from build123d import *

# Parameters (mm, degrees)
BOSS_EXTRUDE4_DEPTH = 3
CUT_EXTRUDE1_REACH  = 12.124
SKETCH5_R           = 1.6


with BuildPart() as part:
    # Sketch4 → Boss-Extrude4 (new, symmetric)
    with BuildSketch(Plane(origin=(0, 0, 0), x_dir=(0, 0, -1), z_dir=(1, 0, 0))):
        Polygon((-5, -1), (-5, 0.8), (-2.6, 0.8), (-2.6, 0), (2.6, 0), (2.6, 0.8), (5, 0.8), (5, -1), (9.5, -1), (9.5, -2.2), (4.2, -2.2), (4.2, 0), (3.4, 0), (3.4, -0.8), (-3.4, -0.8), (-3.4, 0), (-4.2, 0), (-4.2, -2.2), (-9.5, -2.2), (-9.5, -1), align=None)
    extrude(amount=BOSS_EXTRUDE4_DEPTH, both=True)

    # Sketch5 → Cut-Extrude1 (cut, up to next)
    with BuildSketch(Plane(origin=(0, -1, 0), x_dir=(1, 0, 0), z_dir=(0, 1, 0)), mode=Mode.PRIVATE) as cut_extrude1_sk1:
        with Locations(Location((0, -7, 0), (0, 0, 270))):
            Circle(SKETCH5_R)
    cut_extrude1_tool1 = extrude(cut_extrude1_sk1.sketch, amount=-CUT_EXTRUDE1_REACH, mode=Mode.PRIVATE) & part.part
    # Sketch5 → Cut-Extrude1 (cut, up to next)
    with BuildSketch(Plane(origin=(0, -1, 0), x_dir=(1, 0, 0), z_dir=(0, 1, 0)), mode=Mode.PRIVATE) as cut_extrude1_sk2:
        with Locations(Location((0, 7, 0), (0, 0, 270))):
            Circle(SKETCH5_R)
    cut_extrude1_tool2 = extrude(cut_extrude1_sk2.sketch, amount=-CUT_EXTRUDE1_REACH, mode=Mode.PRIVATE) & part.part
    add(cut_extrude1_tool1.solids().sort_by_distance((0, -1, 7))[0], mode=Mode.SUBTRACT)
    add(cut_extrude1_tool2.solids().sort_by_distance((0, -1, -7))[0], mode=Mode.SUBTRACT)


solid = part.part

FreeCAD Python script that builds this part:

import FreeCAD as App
import Part
import Sketcher
from FreeCAD import Vector
Q = App.Units.Quantity

doc = App.newDocument("Part")
body = doc.addObject("PartDesign::Body", "Body")

sketch1 = body.newObject("Sketcher::SketchObject", "Sketch")
sketch1.AttachmentSupport = (doc.getObject("YZ_Plane"), [""])
sketch1.MapMode = "FlatFace"
sketch1.addGeometry(Part.LineSegment(Vector(0.8, 5, 0), Vector(-1, 5, 0)), False)
sketch1.addGeometry(Part.LineSegment(Vector(-1, 5, 0), Vector(-1, 9.5, 0)), False)
sketch1.addGeometry(Part.LineSegment(Vector(-1, 9.5, 0), Vector(-2.2, 9.5, 0)), False)
sketch1.addGeometry(Part.LineSegment(Vector(-2.2, 9.5, 0), Vector(-2.2, 4.2, 0)), False)
sketch1.addGeometry(Part.LineSegment(Vector(-2.2, 4.2, 0), Vector(0, 4.2, 0)), False)
sketch1.addGeometry(Part.LineSegment(Vector(0, 4.2, 0), Vector(0, 3.4, 0)), False)
sketch1.addGeometry(Part.LineSegment(Vector(0, 3.4, 0), Vector(-0.8, 3.4, 0)), False)
sketch1.addGeometry(Part.LineSegment(Vector(-0.8, 3.4, 0), Vector(-0.8, -3.4, 0)), False)
sketch1.addGeometry(Part.LineSegment(Vector(-0.8, -3.4, 0), Vector(0, -3.4, 0)), False)
sketch1.addGeometry(Part.LineSegment(Vector(0, -3.4, 0), Vector(0, -4.2, 0)), False)
sketch1.addGeometry(Part.LineSegment(Vector(0, -4.2, 0), Vector(-2.2, -4.2, 0)), False)
sketch1.addGeometry(Part.LineSegment(Vector(-2.2, -4.2, 0), Vector(-2.2, -9.5, 0)), False)
sketch1.addGeometry(Part.LineSegment(Vector(-2.2, -9.5, 0), Vector(-1, -9.5, 0)), False)
sketch1.addGeometry(Part.LineSegment(Vector(-1, -9.5, 0), Vector(-1, -5, 0)), False)
sketch1.addGeometry(Part.LineSegment(Vector(-1, -5, 0), Vector(0.8, -5, 0)), False)
sketch1.addGeometry(Part.LineSegment(Vector(0.8, -5, 0), Vector(0.8, -2.6, 0)), False)
sketch1.addGeometry(Part.LineSegment(Vector(0.8, -2.6, 0), Vector(0, -2.6, 0)), False)
sketch1.addGeometry(Part.LineSegment(Vector(0, -2.6, 0), Vector(0, 2.6, 0)), False)
sketch1.addGeometry(Part.LineSegment(Vector(0, 2.6, 0), Vector(0.8, 2.6, 0)), False)
sketch1.addGeometry(Part.LineSegment(Vector(0.8, 2.6, 0), Vector(0.8, 5, 0)), False)
sketch1.addConstraint(Sketcher.Constraint("Coincident", 0, 2, 1, 1))
sketch1.addConstraint(Sketcher.Constraint("Coincident", 1, 2, 2, 1))
sketch1.addConstraint(Sketcher.Constraint("Coincident", 2, 2, 3, 1))
sketch1.addConstraint(Sketcher.Constraint("Coincident", 3, 2, 4, 1))
sketch1.addConstraint(Sketcher.Constraint("Coincident", 4, 2, 5, 1))
sketch1.addConstraint(Sketcher.Constraint("Coincident", 5, 2, 6, 1))
sketch1.addConstraint(Sketcher.Constraint("Coincident", 6, 2, 7, 1))
sketch1.addConstraint(Sketcher.Constraint("Coincident", 7, 2, 8, 1))
sketch1.addConstraint(Sketcher.Constraint("Coincident", 8, 2, 9, 1))
sketch1.addConstraint(Sketcher.Constraint("Coincident", 9, 2, 10, 1))
sketch1.addConstraint(Sketcher.Constraint("Coincident", 10, 2, 11, 1))
sketch1.addConstraint(Sketcher.Constraint("Coincident", 11, 2, 12, 1))
sketch1.addConstraint(Sketcher.Constraint("Coincident", 12, 2, 13, 1))
sketch1.addConstraint(Sketcher.Constraint("Coincident", 13, 2, 14, 1))
sketch1.addConstraint(Sketcher.Constraint("Coincident", 14, 2, 15, 1))
sketch1.addConstraint(Sketcher.Constraint("Coincident", 15, 2, 16, 1))
sketch1.addConstraint(Sketcher.Constraint("Coincident", 16, 2, 17, 1))
sketch1.addConstraint(Sketcher.Constraint("Coincident", 17, 2, 18, 1))
sketch1.addConstraint(Sketcher.Constraint("Coincident", 18, 2, 19, 1))
sketch1.addConstraint(Sketcher.Constraint("Coincident", 19, 2, 0, 1))
sketch1.addConstraint(Sketcher.Constraint("Horizontal", 0))
sketch1.addConstraint(Sketcher.Constraint("Vertical", 1))
sketch1.addConstraint(Sketcher.Constraint("Horizontal", 2))
sketch1.addConstraint(Sketcher.Constraint("Vertical", 3))
sketch1.addConstraint(Sketcher.Constraint("Horizontal", 4))
sketch1.addConstraint(Sketcher.Constraint("Vertical", 5))
sketch1.addConstraint(Sketcher.Constraint("Horizontal", 6))
sketch1.addConstraint(Sketcher.Constraint("Vertical", 7))
sketch1.addConstraint(Sketcher.Constraint("Horizontal", 8))
sketch1.addConstraint(Sketcher.Constraint("Vertical", 9))
sketch1.addConstraint(Sketcher.Constraint("Horizontal", 10))
sketch1.addConstraint(Sketcher.Constraint("Vertical", 11))
sketch1.addConstraint(Sketcher.Constraint("Horizontal", 12))
sketch1.addConstraint(Sketcher.Constraint("Vertical", 13))
sketch1.addConstraint(Sketcher.Constraint("Horizontal", 14))
sketch1.addConstraint(Sketcher.Constraint("Vertical", 15))
sketch1.addConstraint(Sketcher.Constraint("Horizontal", 16))
sketch1.addConstraint(Sketcher.Constraint("Vertical", 17))
sketch1.addConstraint(Sketcher.Constraint("Horizontal", 18))
sketch1.addConstraint(Sketcher.Constraint("Vertical", 19))
sketch1.addConstraint(Sketcher.Constraint("Symmetric", 5, 2, 8, 2, -1, 1))
sketch1.addConstraint(Sketcher.Constraint("Symmetric", 16, 2, 17, 2, -1, 1))
sketch1.addConstraint(Sketcher.Constraint("Symmetric", 4, 2, 9, 2, -1))
sketch1.addConstraint(Sketcher.Constraint("Symmetric", 2, 2, 11, 2, -1))
sketch1.addConstraint(Sketcher.Constraint("Symmetric", 0, 2, 13, 2, -1))
sketch1.addConstraint(Sketcher.Constraint("Vertical", 15, 2, 18, 2))
sketch1.addConstraint(Sketcher.Constraint("Equal", 8, 16))
sketch1.addConstraint(Sketcher.Constraint("Equal", 18, 5))
sketch1.addConstraint(Sketcher.Constraint("DistanceX", 0, 2, 0, 1, Q("1.8 mm")))
sketch1.addConstraint(Sketcher.Constraint("DistanceX", 2, 2, 2, 1, Q("1.2 mm")))
sketch1.addConstraint(Sketcher.Constraint("DistanceX", 4, 1, 4, 2, Q("2.2 mm")))
sketch1.addConstraint(Sketcher.Constraint("DistanceY", 1, 1, 1, 2, Q("4.5 mm")))
sketch1.addConstraint(Sketcher.Constraint("DistanceY", 3, 2, 3, 1, Q("5.3 mm")))
sketch1.addConstraint(Sketcher.Constraint("DistanceY", 7, 2, 7, 1, Q("6.8 mm")))
sketch1.addConstraint(Sketcher.Constraint("DistanceY", 15, 1, 15, 2, Q("2.4 mm")))
pad1 = body.newObject("PartDesign::Pad", "Pad")
pad1.Profile = sketch1
pad1.Length = 6
pad1.Midplane = True

sketch2 = body.newObject("Sketcher::SketchObject", "Sketch001")
sketch2.AttachmentSupport = (doc.getObject("XZ_Plane"), [""])
sketch2.MapMode = "FlatFace"
sketch2.AttachmentOffset = App.Placement(Vector(0, 0, 1), App.Rotation())
sketch2.addGeometry(Part.Circle(Vector(0, 7, 0), Vector(0, 0, 1), 1.6), False)
sketch2.addConstraint(Sketcher.Constraint("PointOnObject", 0, 3, -2))
sketch2.addConstraint(Sketcher.Constraint("Diameter", 0, Q("3.2 mm")))
sketch2.addConstraint(Sketcher.Constraint("DistanceY", -1, 1, 0, 3, Q("7 mm")))
pocket1 = body.newObject("PartDesign::Pocket", "Pocket")
pocket1.Profile = sketch2
pocket1.Type = "UpToFirst"
pocket1.Reversed = True

sketch3 = body.newObject("Sketcher::SketchObject", "Sketch002")
sketch3.AttachmentSupport = (doc.getObject("XZ_Plane"), [""])
sketch3.MapMode = "FlatFace"
sketch3.AttachmentOffset = App.Placement(Vector(0, 0, 1), App.Rotation())
sketch3.addGeometry(Part.Circle(Vector(0, -7, 0), Vector(0, 0, 1), 1.6), False)
sketch3.addConstraint(Sketcher.Constraint("PointOnObject", 0, 3, -2))
sketch3.addConstraint(Sketcher.Constraint("Diameter", 0, Q("3.2 mm")))
sketch3.addConstraint(Sketcher.Constraint("DistanceY", 0, 3, -1, 1, Q("7 mm")))
pocket2 = body.newObject("PartDesign::Pocket", "Pocket001")
pocket2.Profile = sketch3
pocket2.Type = "UpToFirst"
pocket2.Reversed = True

doc.recompute()
